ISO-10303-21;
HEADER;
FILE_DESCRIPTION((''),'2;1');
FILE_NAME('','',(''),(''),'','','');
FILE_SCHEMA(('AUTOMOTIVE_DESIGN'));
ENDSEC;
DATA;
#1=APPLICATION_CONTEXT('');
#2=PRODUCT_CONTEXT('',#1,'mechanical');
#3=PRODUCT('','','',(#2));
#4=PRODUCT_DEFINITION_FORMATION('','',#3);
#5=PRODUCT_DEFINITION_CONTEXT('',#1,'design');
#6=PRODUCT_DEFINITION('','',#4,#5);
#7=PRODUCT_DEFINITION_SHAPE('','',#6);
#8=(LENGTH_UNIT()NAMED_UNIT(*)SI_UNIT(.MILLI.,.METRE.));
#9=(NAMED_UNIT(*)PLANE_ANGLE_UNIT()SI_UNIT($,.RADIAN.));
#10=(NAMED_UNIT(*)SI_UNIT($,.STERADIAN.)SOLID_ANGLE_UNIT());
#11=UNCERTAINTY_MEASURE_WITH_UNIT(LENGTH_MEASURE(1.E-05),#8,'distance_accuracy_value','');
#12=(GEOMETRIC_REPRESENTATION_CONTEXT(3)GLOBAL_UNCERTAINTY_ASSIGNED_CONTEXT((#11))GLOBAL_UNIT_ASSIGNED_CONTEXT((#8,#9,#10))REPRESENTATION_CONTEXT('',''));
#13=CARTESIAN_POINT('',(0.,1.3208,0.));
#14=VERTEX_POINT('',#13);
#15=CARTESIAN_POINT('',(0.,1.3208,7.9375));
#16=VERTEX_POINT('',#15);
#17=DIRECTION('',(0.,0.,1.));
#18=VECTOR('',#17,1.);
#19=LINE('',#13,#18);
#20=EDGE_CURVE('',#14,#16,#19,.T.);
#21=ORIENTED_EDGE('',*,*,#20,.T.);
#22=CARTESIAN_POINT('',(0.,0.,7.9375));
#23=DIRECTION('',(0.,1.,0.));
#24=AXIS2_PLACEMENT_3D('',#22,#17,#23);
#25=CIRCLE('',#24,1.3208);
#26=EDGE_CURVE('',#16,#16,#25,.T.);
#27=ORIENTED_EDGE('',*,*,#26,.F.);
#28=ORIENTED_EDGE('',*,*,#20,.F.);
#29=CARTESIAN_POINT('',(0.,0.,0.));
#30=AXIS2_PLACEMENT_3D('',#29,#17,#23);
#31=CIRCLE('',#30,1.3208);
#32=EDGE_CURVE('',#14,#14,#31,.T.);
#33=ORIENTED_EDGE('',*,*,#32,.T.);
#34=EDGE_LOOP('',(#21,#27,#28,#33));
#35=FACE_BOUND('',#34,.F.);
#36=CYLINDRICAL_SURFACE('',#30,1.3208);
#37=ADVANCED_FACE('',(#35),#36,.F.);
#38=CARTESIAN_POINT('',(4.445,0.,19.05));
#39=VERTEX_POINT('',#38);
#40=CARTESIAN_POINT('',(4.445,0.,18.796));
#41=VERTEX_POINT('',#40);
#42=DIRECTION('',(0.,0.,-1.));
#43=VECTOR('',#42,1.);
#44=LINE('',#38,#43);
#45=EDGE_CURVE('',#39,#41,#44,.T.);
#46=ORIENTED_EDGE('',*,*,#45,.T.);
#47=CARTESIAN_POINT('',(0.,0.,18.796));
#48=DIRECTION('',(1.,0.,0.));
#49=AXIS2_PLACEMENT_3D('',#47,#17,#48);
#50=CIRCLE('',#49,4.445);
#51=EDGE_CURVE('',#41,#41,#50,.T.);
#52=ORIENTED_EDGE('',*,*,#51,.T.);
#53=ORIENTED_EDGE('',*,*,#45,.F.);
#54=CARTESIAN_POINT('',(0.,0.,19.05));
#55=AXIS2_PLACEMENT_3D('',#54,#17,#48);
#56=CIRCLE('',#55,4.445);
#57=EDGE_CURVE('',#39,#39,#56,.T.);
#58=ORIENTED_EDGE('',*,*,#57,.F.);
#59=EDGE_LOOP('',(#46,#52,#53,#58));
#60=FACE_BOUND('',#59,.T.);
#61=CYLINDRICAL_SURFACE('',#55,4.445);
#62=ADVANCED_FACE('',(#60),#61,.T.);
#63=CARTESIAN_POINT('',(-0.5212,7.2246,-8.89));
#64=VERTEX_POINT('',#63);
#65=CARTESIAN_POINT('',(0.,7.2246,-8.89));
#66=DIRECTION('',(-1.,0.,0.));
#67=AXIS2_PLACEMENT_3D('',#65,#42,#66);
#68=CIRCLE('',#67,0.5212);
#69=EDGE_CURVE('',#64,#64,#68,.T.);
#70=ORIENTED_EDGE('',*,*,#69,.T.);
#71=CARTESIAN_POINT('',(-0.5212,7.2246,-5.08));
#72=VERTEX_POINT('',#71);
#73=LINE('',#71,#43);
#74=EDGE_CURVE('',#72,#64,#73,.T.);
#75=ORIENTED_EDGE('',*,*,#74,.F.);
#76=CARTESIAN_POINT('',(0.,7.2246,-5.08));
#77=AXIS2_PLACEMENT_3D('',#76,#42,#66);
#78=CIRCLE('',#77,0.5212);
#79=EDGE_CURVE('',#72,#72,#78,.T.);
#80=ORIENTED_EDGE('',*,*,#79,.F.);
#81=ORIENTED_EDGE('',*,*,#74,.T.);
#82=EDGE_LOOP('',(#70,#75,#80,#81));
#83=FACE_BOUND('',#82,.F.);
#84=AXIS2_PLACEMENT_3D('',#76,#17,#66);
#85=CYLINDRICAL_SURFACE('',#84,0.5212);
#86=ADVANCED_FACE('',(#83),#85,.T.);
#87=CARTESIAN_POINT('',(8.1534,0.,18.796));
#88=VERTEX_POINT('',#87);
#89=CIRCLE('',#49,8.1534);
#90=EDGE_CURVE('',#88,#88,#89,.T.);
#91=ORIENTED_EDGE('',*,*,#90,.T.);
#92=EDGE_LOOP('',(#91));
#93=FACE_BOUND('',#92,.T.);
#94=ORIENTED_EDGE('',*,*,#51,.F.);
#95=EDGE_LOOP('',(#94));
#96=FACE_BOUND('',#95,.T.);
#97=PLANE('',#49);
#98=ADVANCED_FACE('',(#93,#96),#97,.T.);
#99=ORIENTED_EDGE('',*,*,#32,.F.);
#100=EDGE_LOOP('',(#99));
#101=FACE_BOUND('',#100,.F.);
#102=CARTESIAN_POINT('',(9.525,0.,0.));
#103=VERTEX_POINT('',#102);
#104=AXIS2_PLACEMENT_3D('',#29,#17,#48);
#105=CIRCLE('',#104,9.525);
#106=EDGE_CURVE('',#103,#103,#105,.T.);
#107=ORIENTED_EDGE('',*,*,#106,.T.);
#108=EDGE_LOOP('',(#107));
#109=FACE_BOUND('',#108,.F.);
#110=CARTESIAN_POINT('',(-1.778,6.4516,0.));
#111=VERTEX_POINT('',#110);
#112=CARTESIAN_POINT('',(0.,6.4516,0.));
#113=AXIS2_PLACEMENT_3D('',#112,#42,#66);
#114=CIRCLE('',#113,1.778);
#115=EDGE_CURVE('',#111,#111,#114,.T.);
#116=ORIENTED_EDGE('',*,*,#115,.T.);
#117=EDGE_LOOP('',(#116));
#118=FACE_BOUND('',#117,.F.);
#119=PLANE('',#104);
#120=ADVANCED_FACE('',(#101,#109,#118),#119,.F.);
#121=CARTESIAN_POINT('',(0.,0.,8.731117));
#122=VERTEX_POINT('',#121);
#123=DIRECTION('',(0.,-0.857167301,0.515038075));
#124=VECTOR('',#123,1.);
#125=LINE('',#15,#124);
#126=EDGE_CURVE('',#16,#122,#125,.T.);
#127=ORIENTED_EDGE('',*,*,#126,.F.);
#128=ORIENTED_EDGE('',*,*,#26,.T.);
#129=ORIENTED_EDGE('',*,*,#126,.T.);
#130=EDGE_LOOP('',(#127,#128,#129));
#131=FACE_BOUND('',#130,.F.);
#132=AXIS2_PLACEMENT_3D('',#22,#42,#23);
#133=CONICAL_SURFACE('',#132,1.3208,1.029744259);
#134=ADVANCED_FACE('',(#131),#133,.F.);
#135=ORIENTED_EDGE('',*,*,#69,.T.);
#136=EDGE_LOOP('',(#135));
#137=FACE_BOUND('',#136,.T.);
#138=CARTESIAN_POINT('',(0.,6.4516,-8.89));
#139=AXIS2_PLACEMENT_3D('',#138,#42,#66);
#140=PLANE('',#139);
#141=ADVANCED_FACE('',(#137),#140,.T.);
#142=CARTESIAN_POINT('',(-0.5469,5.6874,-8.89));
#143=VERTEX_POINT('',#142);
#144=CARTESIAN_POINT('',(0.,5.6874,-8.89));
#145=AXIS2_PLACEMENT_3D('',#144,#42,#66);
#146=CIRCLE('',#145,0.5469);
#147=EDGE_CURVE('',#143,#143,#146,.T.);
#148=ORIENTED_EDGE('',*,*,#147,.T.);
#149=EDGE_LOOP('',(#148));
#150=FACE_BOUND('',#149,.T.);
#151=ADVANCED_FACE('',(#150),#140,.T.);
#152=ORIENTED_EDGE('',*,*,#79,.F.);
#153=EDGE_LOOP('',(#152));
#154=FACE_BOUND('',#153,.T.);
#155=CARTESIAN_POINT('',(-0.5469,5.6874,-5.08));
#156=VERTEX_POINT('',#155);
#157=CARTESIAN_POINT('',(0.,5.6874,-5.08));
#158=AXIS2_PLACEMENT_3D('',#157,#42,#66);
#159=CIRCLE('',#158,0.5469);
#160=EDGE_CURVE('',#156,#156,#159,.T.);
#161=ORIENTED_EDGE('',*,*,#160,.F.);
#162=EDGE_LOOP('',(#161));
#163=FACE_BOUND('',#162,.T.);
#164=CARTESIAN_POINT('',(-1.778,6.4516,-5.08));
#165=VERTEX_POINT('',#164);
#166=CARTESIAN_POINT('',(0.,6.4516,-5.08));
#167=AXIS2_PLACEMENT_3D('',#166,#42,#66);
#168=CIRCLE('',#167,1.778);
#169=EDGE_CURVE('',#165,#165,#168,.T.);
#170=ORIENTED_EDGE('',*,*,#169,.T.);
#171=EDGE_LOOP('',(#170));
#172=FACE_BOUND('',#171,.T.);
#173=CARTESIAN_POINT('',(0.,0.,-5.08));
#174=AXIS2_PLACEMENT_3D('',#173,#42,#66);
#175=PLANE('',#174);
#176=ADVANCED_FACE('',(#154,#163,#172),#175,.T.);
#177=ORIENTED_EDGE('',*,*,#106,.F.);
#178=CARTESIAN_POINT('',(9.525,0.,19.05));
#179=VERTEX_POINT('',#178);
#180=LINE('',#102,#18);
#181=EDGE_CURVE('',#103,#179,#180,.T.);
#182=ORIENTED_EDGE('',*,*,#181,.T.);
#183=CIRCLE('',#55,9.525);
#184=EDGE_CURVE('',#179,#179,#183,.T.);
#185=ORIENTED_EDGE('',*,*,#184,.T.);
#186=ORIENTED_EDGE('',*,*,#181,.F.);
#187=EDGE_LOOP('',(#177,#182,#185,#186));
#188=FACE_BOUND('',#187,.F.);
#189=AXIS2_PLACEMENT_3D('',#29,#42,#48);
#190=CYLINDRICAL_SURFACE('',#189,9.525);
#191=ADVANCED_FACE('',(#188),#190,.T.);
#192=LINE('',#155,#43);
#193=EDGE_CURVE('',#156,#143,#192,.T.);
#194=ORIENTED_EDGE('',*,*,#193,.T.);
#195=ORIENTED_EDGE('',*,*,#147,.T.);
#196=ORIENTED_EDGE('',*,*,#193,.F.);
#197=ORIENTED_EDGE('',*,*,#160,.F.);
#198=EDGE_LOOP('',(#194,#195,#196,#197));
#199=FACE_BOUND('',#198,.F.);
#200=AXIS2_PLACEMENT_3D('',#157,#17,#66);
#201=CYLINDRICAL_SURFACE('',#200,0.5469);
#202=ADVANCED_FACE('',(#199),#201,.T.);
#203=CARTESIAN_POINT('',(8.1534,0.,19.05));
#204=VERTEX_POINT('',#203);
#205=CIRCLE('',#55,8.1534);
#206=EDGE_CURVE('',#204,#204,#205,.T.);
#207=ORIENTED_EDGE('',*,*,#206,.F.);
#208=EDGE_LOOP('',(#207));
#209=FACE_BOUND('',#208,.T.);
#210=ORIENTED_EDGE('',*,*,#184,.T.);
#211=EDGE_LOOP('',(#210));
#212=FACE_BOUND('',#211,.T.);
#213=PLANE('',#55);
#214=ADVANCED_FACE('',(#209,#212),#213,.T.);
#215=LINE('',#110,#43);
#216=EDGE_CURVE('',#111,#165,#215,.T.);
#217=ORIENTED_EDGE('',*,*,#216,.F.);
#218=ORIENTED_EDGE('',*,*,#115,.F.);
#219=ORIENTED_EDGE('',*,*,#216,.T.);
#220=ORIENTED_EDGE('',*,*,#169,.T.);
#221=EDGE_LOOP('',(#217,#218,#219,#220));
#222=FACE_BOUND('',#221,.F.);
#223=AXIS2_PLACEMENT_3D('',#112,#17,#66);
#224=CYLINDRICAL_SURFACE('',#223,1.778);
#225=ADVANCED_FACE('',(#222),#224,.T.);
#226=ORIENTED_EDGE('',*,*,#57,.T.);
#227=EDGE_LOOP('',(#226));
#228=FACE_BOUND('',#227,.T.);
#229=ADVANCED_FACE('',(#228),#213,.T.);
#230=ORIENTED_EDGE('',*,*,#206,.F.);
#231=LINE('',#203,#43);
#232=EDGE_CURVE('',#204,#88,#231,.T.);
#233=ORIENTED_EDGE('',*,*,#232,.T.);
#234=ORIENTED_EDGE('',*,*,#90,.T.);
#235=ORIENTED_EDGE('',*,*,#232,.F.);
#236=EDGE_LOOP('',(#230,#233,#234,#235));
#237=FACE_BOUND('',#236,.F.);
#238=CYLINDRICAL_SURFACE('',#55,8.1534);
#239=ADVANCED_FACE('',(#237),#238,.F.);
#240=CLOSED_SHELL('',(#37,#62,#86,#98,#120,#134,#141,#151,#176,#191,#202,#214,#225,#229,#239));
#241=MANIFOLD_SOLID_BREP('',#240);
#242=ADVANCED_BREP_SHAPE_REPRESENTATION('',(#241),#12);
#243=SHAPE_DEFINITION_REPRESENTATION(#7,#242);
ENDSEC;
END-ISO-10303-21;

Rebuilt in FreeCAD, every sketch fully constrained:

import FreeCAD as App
import Part
import Sketcher
Q = App.Units.Quantity

doc = App.newDocument("Part")
body = doc.addObject("PartDesign::Body", "Body")

sketch1 = body.newObject("Sketcher::SketchObject", "Sketch")
sketch1.AttachmentSupport = (doc.getObject("XY_Plane"), [""])
sketch1.MapMode = "FlatFace"
sketch1.addGeometry(Part.Circle(App.Vector(0, 0, 0), App.Vector(0, 0, 1), 10), False)
sketch1.addConstraint([
    Sketcher.Constraint("Coincident", 0, 3, -1, 1),
    Sketcher.Constraint("Diameter", 0, Q("0.75 in")),
])
pad1 = body.newObject("PartDesign::Pad", "Pad")
pad1.Profile = sketch1
pad1.Length = Q("0.75 in")

sketch2 = body.newObject("Sketcher::SketchObject", "Sketch001")
sketch2.AttachmentSupport = (doc.getObject("XY_Plane"), [""])
sketch2.MapMode = "FlatFace"
sketch2.AttachmentOffset = App.Placement(App.Vector(0, 0, 0.75 * 25.4), App.Rotation())
sketch2.addGeometry([
    Part.Circle(App.Vector(0, 0, 0), App.Vector(0, 0, 1), 8.2),
    Part.Circle(App.Vector(0, 0, 0), App.Vector(0, 0, 1), 4.4),
], False)
sketch2.addConstraint([
    Sketcher.Constraint("Coincident", 0, 3, -1, 1),
    Sketcher.Constraint("Coincident", 1, 3, -1, 1),
    Sketcher.Constraint("Diameter", 1, Q("0.35 in")),
    Sketcher.Constraint("Diameter", 0, Q("0.642 in")),
])
pocket1 = body.newObject("PartDesign::Pocket", "Pocket")
pocket1.Profile = sketch2
pocket1.Length = Q("0.01 in")

sketch3 = body.newObject("Sketcher::SketchObject", "Sketch002")
sketch3.AttachmentSupport = (doc.getObject("XY_Plane"), [""])
sketch3.MapMode = "FlatFace"
sketch3.addGeometry(Part.Circle(App.Vector(0, 0, 0), App.Vector(0, 0, 1), 1.3), False)
sketch3.addConstraint([
    Sketcher.Constraint("Coincident", 0, 3, -1, 1),
    Sketcher.Constraint("Diameter", 0, Q("0.104 in")),
])
doc.recompute()
hole = body.newObject("PartDesign::Hole", "Hole")
hole.Profile = sketch3
hole.ThreadType = "None"
hole.Diameter = Q("0.104 in")
hole.DepthType = "Dimension"
hole.Depth = Q("0.3125 in")
hole.DrillPoint = "Angled"
hole.DrillPointAngle = 118
hole.Reversed = True

sketch4 = body.newObject("Sketcher::SketchObject", "Sketch003")
sketch4.AttachmentSupport = (doc.getObject("XY_Plane"), [""])
sketch4.MapMode = "FlatFace"
sketch4.addGeometry(Part.Circle(App.Vector(0, 6.5, 0), App.Vector(0, 0, 1), 1.8), False)
sketch4.addConstraint([
    Sketcher.Constraint("PointOnObject", 0, 3, -2),
    Sketcher.Constraint("Diameter", 0, Q("0.14 in")),
    Sketcher.Constraint("DistanceY", -1, 1, 0, 3, Q("0.254 in")),
])
pad2 = body.newObject("PartDesign::Pad", "Pad001")
pad2.Profile = sketch4
pad2.Length = Q("0.2 in")
pad2.Reversed = True

sketch5 = body.newObject("Sketcher::SketchObject", "Sketch004")
sketch5.AttachmentSupport = (doc.getObject("XY_Plane"), [""])
sketch5.MapMode = "FlatFace"
sketch5.AttachmentOffset = App.Placement(App.Vector(0, 0, -0.2 * 25.4), App.Rotation())
sketch5.addGeometry([
    Part.Circle(App.Vector(0, 7.2, 0), App.Vector(0, 0, 1), 0.5),
    Part.Circle(App.Vector(0, 5.7, 0), App.Vector(0, 0, 1), 0.5),
], False)
sketch5.addConstraint([
    Sketcher.Constraint("PointOnObject", 0, 3, -2),
    Sketcher.Constraint("PointOnObject", 1, 3, -2),
    Sketcher.Constraint("Diameter", 0, 1.0424),
    Sketcher.Constraint("Diameter", 1, 1.0938),
    Sketcher.Constraint("DistanceY", -1, 1, 0, 3, 7.2246),
    Sketcher.Constraint("DistanceY", -1, 1, 1, 3, 5.6874),
])
pad3 = body.newObject("PartDesign::Pad", "Pad002")
pad3.Profile = sketch5
pad3.Length = Q("0.15 in")
pad3.Reversed = True

doc.recompute()
